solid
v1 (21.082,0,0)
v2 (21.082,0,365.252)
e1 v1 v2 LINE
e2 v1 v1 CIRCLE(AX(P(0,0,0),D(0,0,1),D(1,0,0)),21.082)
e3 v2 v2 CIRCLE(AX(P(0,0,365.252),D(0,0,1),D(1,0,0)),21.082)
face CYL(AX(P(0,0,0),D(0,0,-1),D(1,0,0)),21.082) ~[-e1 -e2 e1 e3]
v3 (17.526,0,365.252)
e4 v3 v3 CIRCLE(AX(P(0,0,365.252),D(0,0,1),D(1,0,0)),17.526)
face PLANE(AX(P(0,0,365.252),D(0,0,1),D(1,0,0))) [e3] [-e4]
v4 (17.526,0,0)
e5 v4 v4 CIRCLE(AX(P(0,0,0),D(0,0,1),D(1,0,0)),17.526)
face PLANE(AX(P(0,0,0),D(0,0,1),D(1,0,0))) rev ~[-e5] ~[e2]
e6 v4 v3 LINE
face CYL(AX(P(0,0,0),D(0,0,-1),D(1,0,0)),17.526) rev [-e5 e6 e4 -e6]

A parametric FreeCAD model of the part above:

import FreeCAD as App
import Part
import Sketcher
Q = App.Units.Quantity

doc = App.newDocument("Part")
params = doc.addObject("Spreadsheet::Sheet", "Params")
for row, (alias, value) in enumerate([
    ("sketch1_diameter", "1.66 in"),
    ("sketch1_diameter2", "1.38 in"),
    ("pad1_length", "14.38 in"),
], start=1):
    params.set(f"A{row}", alias)
    params.set(f"B{row}", "=" + value)
    params.setAlias(f"B{row}", alias)

body = doc.addObject("PartDesign::Body", "Body")

# Sketch on XY plane
sketch1 = body.newObject("Sketcher::SketchObject", "Sketch")
sketch1.AttachmentSupport = (doc.getObject("XY_Plane"), [""])
sketch1.MapMode = "FlatFace"
sketch1.addGeometry([
    Part.Circle(App.Vector(0, 0, 0), App.Vector(0, 0, 1), 21),
    Part.Circle(App.Vector(0, 0, 0), App.Vector(0, 0, 1), 18),
], False)
sketch1.addConstraint([
    Sketcher.Constraint("Coincident", 0, 3, -1, 1),
    Sketcher.Constraint("Coincident", 1, 3, -1, 1),
    Sketcher.Constraint("Diameter", 0, Q("1.66 in")),
    Sketcher.Constraint("Diameter", 1, Q("1.38 in")),
])
sketch1.setExpression("Constraints[2]", "Params.sketch1_diameter")
sketch1.setExpression("Constraints[3]", "Params.sketch1_diameter2")
pad1 = body.newObject("PartDesign::Pad", "Pad")
pad1.Profile = sketch1
pad1.setExpression("Length", "Params.pad1_length")

doc.recompute()
